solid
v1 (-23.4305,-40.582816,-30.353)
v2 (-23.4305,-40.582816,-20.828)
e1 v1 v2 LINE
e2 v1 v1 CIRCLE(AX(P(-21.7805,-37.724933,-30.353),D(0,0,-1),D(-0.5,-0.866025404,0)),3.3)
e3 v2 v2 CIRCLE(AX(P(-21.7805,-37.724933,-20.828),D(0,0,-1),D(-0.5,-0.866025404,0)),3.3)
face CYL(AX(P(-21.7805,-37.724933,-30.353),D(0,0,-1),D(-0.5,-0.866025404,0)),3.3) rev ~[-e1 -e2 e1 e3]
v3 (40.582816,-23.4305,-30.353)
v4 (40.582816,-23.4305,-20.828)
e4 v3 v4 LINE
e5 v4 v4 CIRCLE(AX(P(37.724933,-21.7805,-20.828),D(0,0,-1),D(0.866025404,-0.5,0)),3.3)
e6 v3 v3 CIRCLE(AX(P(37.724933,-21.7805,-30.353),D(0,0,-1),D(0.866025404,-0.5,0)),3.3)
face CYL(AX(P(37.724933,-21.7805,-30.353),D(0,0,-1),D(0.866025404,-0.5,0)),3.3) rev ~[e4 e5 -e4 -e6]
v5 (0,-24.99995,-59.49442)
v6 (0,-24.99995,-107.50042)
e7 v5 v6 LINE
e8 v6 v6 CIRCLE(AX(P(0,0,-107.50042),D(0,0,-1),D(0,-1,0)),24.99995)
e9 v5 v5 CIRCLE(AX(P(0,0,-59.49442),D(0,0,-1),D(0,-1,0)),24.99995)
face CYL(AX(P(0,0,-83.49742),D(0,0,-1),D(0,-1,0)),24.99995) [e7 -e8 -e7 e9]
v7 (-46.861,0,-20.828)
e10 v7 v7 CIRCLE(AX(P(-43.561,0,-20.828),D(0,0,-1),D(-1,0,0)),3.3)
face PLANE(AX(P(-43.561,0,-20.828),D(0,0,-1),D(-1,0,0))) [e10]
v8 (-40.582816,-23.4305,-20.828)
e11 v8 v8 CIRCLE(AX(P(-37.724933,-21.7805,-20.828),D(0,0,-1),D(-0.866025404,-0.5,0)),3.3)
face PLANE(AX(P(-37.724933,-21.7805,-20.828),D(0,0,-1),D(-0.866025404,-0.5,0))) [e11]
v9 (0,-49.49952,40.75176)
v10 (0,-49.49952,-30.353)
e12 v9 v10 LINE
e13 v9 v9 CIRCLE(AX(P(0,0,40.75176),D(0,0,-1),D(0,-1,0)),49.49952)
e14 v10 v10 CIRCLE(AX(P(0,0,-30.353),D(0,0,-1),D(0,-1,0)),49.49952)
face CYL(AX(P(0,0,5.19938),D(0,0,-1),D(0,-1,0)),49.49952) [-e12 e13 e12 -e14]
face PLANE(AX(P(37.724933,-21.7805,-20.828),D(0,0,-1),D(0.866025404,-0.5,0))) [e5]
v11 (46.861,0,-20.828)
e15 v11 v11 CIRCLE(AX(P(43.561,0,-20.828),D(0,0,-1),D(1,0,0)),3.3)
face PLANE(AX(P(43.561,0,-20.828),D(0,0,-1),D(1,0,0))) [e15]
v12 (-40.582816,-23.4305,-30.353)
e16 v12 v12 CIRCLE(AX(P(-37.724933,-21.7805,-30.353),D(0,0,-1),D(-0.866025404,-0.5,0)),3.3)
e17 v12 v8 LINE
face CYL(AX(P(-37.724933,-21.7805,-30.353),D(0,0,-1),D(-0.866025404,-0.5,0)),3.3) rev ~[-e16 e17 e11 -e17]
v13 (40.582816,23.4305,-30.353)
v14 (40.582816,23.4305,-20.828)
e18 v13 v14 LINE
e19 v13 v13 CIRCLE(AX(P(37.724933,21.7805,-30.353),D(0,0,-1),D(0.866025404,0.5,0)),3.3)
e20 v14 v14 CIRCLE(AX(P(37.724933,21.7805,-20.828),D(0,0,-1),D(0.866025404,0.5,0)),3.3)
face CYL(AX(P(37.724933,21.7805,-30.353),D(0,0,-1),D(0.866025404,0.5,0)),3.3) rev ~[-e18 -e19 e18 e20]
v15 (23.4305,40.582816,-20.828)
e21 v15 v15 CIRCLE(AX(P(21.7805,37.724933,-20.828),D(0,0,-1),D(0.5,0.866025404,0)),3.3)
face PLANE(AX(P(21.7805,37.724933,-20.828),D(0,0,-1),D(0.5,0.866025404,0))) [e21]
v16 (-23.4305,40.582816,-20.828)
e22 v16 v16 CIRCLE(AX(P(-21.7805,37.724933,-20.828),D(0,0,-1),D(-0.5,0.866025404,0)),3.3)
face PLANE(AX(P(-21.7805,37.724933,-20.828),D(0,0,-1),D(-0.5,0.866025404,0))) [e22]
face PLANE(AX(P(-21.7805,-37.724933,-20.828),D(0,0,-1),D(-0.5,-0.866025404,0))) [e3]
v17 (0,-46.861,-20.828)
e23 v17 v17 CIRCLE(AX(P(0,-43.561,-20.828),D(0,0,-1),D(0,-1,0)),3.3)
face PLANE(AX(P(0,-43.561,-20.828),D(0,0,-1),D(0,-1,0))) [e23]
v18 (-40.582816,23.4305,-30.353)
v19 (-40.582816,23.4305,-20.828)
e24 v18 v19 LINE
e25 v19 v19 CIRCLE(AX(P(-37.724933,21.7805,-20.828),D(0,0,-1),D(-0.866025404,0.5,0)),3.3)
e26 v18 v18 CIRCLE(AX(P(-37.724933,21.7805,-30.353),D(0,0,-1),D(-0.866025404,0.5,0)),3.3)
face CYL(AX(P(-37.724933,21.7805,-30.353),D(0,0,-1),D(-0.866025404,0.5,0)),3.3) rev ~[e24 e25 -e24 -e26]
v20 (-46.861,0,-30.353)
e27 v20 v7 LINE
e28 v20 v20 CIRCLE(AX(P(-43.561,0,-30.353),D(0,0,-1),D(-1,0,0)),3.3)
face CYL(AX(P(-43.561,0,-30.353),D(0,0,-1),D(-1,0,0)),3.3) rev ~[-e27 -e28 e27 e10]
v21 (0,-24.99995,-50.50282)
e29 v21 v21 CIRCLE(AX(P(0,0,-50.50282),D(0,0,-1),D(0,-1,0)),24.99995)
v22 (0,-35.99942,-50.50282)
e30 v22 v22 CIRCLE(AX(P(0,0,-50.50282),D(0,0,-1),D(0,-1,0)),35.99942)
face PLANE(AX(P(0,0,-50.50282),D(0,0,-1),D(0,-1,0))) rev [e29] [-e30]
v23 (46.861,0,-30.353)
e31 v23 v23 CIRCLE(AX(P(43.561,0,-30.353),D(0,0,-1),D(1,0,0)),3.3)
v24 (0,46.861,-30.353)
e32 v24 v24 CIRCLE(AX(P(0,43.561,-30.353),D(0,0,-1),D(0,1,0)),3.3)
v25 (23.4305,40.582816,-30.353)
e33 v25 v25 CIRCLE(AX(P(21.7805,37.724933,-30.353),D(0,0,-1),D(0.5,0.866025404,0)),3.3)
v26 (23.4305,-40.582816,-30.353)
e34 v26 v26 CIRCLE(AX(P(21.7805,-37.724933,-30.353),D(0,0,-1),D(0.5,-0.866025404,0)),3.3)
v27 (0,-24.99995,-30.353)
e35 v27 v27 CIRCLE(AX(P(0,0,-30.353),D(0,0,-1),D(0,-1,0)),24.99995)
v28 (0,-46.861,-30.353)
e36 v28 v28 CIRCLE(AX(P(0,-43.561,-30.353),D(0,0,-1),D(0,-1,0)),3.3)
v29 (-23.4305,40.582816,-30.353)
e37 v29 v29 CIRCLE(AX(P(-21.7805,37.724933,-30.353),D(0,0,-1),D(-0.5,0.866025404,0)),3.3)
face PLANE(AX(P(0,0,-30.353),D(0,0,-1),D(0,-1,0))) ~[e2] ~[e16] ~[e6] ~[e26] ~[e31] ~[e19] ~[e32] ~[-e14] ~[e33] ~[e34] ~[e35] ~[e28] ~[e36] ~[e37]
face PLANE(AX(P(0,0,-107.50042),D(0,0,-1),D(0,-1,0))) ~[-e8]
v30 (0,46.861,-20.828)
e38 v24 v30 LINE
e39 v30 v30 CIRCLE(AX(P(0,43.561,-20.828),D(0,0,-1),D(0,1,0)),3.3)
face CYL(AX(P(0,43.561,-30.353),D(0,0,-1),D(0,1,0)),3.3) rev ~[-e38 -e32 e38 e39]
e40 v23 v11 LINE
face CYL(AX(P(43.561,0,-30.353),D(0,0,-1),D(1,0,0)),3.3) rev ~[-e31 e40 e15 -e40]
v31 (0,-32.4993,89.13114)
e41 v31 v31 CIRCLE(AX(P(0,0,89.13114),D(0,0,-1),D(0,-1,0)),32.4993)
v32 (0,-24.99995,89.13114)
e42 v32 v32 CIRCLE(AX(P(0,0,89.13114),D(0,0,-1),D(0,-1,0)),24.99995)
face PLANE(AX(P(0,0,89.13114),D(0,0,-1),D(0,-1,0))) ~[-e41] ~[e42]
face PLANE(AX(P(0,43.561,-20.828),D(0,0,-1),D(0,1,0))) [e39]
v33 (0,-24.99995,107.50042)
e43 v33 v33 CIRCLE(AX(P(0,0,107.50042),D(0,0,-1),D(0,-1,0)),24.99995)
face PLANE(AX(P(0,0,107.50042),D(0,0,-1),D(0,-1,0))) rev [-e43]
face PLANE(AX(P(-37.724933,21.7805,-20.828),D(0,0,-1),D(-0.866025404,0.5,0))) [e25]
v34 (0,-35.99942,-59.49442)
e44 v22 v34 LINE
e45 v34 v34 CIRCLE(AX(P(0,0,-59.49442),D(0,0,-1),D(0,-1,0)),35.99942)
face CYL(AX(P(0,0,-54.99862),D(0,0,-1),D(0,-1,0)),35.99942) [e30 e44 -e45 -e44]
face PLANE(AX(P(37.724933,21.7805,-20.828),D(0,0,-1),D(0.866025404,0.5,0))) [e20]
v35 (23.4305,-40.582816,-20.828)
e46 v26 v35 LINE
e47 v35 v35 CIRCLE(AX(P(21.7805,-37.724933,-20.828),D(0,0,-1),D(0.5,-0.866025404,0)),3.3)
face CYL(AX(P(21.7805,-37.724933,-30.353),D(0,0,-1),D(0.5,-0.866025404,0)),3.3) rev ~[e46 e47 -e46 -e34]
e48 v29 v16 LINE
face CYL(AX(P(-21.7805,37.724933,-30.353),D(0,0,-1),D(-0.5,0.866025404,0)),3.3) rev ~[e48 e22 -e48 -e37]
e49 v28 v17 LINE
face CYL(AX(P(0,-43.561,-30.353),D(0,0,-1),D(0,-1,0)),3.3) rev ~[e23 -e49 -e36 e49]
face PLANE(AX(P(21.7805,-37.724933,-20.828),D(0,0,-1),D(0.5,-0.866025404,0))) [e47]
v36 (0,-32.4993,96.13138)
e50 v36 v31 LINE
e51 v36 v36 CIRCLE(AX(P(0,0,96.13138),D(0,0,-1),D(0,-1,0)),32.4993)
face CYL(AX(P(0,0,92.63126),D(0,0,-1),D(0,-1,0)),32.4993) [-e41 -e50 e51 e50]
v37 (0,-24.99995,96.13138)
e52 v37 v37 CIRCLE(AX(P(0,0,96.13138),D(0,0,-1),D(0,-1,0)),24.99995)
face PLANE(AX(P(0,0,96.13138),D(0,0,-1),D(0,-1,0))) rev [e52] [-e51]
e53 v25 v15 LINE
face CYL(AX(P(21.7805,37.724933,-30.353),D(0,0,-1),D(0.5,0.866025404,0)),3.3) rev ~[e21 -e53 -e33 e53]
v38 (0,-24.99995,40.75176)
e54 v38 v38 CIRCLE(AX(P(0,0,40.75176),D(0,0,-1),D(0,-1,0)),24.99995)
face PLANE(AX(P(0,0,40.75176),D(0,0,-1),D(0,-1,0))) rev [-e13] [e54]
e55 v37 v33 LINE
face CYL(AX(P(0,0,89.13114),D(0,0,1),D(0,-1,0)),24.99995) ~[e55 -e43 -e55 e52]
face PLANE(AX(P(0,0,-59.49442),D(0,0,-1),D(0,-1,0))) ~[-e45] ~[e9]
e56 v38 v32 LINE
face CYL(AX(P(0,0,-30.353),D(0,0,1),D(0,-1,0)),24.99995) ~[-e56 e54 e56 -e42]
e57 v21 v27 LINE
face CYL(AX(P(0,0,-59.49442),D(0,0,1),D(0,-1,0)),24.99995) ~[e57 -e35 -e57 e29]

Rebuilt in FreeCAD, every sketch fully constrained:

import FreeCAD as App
import Part
import Sketcher
from FreeCAD import Vector
Q = App.Units.Quantity


def add_polygon(sketch, points):
    """Adds a closed chain of lines whose ends are joined by coincident constraints."""
    first, n = sketch.GeometryCount, len(points)
    for a, b in zip(points, points[1:] + points[:1]):
        sketch.addGeometry(Part.LineSegment(App.Vector(*a, 0), App.Vector(*b, 0)), False)
    for i in range(n):
        sketch.addConstraint(Sketcher.Constraint("Coincident", first + i, 2, first + (i + 1) % n, 1))

doc = App.newDocument("Part")
body = doc.addObject("PartDesign::Body", "Body")

sketch1 = body.newObject("Sketcher::SketchObject", "Sketch")
sketch1.AttachmentSupport = (doc.getObject("YZ_Plane"), [""])
sketch1.MapMode = "FlatFace"
add_polygon(sketch1, [(25, 108), (0, 108), (0, -108), (25, -108), (25, -59), (36, -59), (36, -51), (25, -51), (25, -30), (49, -30), (49, 41), (25, 41), (25, 89), (32, 89), (32, 96), (25, 96)])
sketch1.addConstraint([
    Sketcher.Constraint("Horizontal", 0),
    Sketcher.Constraint("Vertical", 1),
    Sketcher.Constraint("Horizontal", 2),
    Sketcher.Constraint("Vertical", 3),
    Sketcher.Constraint("Horizontal", 4),
    Sketcher.Constraint("Vertical", 5),
    Sketcher.Constraint("Horizontal", 6),
    Sketcher.Constraint("Vertical", 7),
    Sketcher.Constraint("Horizontal", 8),
    Sketcher.Constraint("Vertical", 9),
    Sketcher.Constraint("Horizontal", 10),
    Sketcher.Constraint("Vertical", 11),
    Sketcher.Constraint("Horizontal", 12),
    Sketcher.Constraint("Vertical", 13),
    Sketcher.Constraint("Horizontal", 14),
    Sketcher.Constraint("Vertical", 15),
    Sketcher.Constraint("Symmetric", 0, 2, 1, 2, -1, 1),
    Sketcher.Constraint("Vertical", 3, 2, 6, 2),
    Sketcher.Constraint("Vertical", 7, 2, 10, 2),
    Sketcher.Constraint("Vertical", 11, 2, 14, 2),
    Sketcher.Constraint("DistanceY", 3, 1, 3, 2, Q("1.89 in")),
    Sketcher.Constraint("DistanceY", 5, 1, 5, 2, Q("0.354 in")),
    Sketcher.Constraint("DistanceY", 1, 2, 1, 1, Q("8.4646 in")),
    Sketcher.Constraint("DistanceY", 7, 1, 7, 2, Q("0.7933 in")),
    Sketcher.Constraint("DistanceY", 9, 1, 9, 2, Q("2.7994 in")),
    Sketcher.Constraint("DistanceY", 11, 1, 11, 2, Q("1.9047 in")),
    Sketcher.Constraint("DistanceY", 13, 1, 13, 2, Q("0.2756 in")),
    Sketcher.Constraint("DistanceX", -1, 1, 4, 2, Q("1.4173 in")),
    Sketcher.Constraint("DistanceX", -1, 1, 8, 2, Q("1.9488 in")),
    Sketcher.Constraint("DistanceX", -1, 1, 12, 2, Q("1.2795 in")),
    Sketcher.Constraint("DistanceX", 0, 2, 0, 1, Q("24.99995 mm")),
])
revolution = body.newObject("PartDesign::Revolution", "Revolution")
revolution.Profile = sketch1
revolution.ReferenceAxis = (sketch1, ["V_Axis"])
revolution.Angle = 360

sketch2 = body.newObject("Sketcher::SketchObject", "Sketch001")
sketch2.AttachmentSupport = (doc.getObject("XY_Plane"), [""])
sketch2.MapMode = "FlatFace"
sketch2.AttachmentOffset = App.Placement(Vector(0, 0, -1.195 * 25.4), App.Rotation())
sketch2.addGeometry(Part.Circle(Vector(0, 43.6, 0), Vector(0, 0, 1), 3.3), False)
sketch2.addConstraint([
    Sketcher.Constraint("PointOnObject", 0, 3, -2),
    Sketcher.Constraint("Diameter", 0, Q("6.6 mm")),
    Sketcher.Constraint("DistanceY", -1, 1, 0, 3, Q("1.715 in")),
])
pocket1 = body.newObject("PartDesign::Pocket", "Pocket")
pocket1.Profile = sketch2
pocket1.Length = Q("0.375 in")
pocket1.Reversed = True
doc.recompute()

polarpattern = body.newObject("PartDesign::PolarPattern", "PolarPattern")
polarpattern.Originals = [pocket1]
polarpattern.Axis = (doc.getObject("Z_Axis"), [""])
polarpattern.Angle = 360
polarpattern.Occurrences = 12
body.Tip = polarpattern

doc.recompute()
